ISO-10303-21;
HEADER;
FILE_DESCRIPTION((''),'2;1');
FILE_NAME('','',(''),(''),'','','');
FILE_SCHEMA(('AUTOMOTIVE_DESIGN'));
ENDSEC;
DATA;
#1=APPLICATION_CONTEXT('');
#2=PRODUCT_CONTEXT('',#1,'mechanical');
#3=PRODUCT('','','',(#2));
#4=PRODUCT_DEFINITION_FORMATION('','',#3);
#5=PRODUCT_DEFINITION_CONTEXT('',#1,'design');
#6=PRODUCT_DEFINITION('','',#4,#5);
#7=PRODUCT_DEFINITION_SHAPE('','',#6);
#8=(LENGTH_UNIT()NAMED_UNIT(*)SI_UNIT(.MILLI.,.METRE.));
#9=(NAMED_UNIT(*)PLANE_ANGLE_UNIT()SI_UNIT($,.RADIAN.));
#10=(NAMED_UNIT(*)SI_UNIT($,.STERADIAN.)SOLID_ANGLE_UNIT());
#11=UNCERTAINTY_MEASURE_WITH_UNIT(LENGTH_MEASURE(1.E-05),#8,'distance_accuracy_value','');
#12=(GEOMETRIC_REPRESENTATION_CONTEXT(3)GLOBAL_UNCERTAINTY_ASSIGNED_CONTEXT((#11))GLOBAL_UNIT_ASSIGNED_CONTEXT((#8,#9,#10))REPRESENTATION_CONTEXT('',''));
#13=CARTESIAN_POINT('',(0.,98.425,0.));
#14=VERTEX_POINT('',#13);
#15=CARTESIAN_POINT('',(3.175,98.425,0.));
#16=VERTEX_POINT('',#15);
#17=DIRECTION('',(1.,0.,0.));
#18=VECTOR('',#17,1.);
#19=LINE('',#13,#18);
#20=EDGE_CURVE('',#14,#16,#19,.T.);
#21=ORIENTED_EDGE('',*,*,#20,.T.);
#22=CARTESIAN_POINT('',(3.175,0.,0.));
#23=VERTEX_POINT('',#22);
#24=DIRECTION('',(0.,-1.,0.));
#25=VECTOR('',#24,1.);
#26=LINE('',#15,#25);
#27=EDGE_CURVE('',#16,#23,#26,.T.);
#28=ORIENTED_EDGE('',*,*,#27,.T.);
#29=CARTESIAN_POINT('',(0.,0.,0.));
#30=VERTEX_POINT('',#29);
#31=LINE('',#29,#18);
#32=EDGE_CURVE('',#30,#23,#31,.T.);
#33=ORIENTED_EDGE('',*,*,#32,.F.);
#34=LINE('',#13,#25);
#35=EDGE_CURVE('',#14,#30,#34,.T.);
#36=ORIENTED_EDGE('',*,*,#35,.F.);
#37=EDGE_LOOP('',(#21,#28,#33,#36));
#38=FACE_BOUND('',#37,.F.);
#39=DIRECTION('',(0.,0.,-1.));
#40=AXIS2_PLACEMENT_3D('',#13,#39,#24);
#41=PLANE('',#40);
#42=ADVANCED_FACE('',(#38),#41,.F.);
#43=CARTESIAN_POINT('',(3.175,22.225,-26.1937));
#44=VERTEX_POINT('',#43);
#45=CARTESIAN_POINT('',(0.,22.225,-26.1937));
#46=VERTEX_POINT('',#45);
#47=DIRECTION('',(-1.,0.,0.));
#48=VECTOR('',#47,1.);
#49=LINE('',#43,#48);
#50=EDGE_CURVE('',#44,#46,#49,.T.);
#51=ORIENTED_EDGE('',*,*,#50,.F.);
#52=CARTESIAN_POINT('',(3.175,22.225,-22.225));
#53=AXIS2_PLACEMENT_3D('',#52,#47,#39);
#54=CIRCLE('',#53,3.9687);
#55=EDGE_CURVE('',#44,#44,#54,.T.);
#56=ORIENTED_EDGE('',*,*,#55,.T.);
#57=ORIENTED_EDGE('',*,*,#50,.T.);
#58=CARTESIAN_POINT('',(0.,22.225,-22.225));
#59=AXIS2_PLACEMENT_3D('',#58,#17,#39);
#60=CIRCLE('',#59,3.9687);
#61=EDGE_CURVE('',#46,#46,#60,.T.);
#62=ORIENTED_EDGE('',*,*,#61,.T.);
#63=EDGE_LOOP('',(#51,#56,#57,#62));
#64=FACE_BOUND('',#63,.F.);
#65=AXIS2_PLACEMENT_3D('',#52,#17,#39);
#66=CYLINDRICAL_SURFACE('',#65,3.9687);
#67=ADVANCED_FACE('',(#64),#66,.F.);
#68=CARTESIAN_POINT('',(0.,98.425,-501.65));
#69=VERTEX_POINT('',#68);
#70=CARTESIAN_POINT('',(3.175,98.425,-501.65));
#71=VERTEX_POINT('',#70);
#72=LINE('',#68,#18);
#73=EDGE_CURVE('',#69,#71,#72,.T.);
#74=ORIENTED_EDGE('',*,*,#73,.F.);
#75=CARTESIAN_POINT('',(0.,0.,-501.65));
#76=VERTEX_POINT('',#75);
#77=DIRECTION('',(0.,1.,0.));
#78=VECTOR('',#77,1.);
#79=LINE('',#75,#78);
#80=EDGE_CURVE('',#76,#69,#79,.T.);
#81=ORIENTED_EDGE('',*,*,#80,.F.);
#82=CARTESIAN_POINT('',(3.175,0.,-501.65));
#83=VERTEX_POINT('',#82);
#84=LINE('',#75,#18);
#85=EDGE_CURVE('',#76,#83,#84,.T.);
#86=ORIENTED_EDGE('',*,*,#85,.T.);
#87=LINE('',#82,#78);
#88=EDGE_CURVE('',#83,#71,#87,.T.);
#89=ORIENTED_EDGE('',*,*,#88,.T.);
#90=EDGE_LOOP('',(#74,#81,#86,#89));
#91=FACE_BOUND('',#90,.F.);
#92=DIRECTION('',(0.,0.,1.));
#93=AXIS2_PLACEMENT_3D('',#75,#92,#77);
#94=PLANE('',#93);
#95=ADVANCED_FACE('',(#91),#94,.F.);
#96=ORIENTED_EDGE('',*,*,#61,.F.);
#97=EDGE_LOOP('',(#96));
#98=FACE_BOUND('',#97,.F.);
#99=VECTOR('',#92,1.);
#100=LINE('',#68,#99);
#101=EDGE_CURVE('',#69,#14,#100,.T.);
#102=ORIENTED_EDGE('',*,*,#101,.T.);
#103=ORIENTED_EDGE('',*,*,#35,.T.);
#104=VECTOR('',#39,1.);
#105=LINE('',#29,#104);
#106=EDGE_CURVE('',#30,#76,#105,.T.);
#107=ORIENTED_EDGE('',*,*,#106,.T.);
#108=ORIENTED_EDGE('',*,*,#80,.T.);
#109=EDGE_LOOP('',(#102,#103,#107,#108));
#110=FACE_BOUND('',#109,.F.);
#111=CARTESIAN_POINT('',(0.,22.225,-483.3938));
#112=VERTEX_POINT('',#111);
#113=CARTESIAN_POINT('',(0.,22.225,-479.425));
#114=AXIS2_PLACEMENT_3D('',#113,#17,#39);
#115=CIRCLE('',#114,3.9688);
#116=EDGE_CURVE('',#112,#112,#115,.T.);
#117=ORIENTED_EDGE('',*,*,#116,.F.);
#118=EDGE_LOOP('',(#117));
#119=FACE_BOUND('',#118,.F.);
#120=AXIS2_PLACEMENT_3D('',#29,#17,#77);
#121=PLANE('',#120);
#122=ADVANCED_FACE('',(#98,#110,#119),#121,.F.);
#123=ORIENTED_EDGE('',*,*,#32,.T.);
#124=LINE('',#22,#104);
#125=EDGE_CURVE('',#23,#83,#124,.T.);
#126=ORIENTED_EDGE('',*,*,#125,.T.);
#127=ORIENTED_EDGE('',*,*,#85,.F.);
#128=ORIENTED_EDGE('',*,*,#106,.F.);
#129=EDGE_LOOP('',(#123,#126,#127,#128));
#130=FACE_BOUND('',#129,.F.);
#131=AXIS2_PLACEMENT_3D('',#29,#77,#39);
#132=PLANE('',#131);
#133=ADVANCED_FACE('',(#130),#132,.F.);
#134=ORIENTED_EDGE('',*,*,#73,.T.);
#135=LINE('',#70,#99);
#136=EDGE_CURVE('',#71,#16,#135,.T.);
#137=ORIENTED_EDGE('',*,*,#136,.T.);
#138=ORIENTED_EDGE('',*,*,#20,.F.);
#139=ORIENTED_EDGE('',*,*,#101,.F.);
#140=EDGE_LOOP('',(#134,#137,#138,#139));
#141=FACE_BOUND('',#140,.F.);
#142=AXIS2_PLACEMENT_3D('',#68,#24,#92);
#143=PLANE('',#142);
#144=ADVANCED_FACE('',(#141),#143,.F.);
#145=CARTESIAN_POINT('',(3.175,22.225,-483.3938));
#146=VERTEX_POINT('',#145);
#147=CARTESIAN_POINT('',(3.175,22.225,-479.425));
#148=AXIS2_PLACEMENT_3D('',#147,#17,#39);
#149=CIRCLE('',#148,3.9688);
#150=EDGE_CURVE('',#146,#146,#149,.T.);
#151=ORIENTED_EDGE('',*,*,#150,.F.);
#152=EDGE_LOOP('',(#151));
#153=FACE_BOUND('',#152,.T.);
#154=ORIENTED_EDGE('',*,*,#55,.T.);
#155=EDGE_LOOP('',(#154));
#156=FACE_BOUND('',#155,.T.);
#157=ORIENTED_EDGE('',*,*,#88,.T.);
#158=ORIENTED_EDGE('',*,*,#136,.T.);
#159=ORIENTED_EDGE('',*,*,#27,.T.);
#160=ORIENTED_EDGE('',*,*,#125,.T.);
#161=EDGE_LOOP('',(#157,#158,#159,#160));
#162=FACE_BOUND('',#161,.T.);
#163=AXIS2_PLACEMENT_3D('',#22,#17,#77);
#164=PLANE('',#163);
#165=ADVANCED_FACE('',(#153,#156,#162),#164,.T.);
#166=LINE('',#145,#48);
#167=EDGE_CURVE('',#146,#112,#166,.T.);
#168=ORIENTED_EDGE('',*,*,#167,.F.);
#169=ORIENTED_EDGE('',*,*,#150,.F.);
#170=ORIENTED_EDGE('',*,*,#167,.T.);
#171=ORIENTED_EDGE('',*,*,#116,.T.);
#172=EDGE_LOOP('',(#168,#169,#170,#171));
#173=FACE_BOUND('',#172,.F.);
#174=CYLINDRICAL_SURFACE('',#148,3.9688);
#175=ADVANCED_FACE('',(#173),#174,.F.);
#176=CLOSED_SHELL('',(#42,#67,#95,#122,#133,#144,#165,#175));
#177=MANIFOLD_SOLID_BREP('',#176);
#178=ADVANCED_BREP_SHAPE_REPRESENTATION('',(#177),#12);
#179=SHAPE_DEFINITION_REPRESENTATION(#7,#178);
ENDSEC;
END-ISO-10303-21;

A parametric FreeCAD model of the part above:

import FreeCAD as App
import Part
import Sketcher
Q = App.Units.Quantity

doc = App.newDocument("Part")
body = doc.addObject("PartDesign::Body", "Body")

# Sketch on YZ plane
sketch1 = body.newObject("Sketcher::SketchObject", "Sketch")
sketch1.AttachmentSupport = (doc.getObject("YZ_Plane"), [""])
sketch1.MapMode = "FlatFace"
sketch1.addGeometry([
    Part.LineSegment(App.Vector(98.425, 0, 0), App.Vector(0, 0, 0)),
    Part.LineSegment(App.Vector(0, 0, 0), App.Vector(0, -501.65, 0)),
    Part.LineSegment(App.Vector(0, -501.65, 0), App.Vector(98.425, -501.65, 0)),
    Part.LineSegment(App.Vector(98.425, -501.65, 0), App.Vector(98.425, 0, 0)),
], False)
sketch1.addConstraint([
    Sketcher.Constraint("Coincident", 0, 2, 1, 1),
    Sketcher.Constraint("Coincident", 1, 2, 2, 1),
    Sketcher.Constraint("Coincident", 2, 2, 3, 1),
    Sketcher.Constraint("Coincident", 3, 2, 0, 1),
    Sketcher.Constraint("Horizontal", 0),
    Sketcher.Constraint("Vertical", 1),
    Sketcher.Constraint("Horizontal", 2),
    Sketcher.Constraint("Vertical", 3),
    Sketcher.Constraint("Coincident", 0, 2, -1, 1),
    Sketcher.Constraint("DistanceY", 1, 2, 1, 1, Q("19.75 in")),
    Sketcher.Constraint("DistanceX", 0, 2, 0, 1, Q("3.875 in")),
])
pad1 = body.newObject("PartDesign::Pad", "Pad")
pad1.Profile = sketch1
pad1.Length = Q("0.125 in")

# Sketch on YZ plane
sketch2 = body.newObject("Sketcher::SketchObject", "Sketch001")
sketch2.AttachmentSupport = (doc.getObject("YZ_Plane"), [""])
sketch2.MapMode = "FlatFace"
sketch2.AttachmentOffset = App.Placement(App.Vector(0, 0, 0.125 * 25.4), App.Rotation())
sketch2.addGeometry(Part.Circle(App.Vector(22.225, -22.225, 0), App.Vector(0, 0, 1), 3.9687), False)
sketch2.addConstraint([
    Sketcher.Constraint("Diameter", 0, Q("0.3125 in")),
    Sketcher.Constraint("DistanceX", -1, 1, 0, 3, Q("0.875 in")),
    Sketcher.Constraint("DistanceY", 0, 3, -1, 1, Q("0.875 in")),
])
pocket1 = body.newObject("PartDesign::Pocket", "Pocket")
pocket1.Profile = sketch2
pocket1.Length = Q("0.125 in")

# Sketch on YZ plane
sketch3 = body.newObject("Sketcher::SketchObject", "Sketch002")
sketch3.AttachmentSupport = (doc.getObject("YZ_Plane"), [""])
sketch3.MapMode = "FlatFace"
sketch3.AttachmentOffset = App.Placement(App.Vector(0, 0, 0.125 * 25.4), App.Rotation())
sketch3.addGeometry(Part.Circle(App.Vector(22.225, -479.425, 0), App.Vector(0, 0, 1), 3.9688), False)
sketch3.addConstraint([
    Sketcher.Constraint("Diameter", 0, Q("0.3125 in")),
    Sketcher.Constraint("DistanceX", -1, 1, 0, 3, Q("0.875 in")),
    Sketcher.Constraint("DistanceY", 0, 3, -1, 1, Q("18.875 in")),
])
pocket2 = body.newObject("PartDesign::Pocket", "Pocket001")
pocket2.Profile = sketch3
pocket2.Length = Q("0.125 in")

doc.recompute()
